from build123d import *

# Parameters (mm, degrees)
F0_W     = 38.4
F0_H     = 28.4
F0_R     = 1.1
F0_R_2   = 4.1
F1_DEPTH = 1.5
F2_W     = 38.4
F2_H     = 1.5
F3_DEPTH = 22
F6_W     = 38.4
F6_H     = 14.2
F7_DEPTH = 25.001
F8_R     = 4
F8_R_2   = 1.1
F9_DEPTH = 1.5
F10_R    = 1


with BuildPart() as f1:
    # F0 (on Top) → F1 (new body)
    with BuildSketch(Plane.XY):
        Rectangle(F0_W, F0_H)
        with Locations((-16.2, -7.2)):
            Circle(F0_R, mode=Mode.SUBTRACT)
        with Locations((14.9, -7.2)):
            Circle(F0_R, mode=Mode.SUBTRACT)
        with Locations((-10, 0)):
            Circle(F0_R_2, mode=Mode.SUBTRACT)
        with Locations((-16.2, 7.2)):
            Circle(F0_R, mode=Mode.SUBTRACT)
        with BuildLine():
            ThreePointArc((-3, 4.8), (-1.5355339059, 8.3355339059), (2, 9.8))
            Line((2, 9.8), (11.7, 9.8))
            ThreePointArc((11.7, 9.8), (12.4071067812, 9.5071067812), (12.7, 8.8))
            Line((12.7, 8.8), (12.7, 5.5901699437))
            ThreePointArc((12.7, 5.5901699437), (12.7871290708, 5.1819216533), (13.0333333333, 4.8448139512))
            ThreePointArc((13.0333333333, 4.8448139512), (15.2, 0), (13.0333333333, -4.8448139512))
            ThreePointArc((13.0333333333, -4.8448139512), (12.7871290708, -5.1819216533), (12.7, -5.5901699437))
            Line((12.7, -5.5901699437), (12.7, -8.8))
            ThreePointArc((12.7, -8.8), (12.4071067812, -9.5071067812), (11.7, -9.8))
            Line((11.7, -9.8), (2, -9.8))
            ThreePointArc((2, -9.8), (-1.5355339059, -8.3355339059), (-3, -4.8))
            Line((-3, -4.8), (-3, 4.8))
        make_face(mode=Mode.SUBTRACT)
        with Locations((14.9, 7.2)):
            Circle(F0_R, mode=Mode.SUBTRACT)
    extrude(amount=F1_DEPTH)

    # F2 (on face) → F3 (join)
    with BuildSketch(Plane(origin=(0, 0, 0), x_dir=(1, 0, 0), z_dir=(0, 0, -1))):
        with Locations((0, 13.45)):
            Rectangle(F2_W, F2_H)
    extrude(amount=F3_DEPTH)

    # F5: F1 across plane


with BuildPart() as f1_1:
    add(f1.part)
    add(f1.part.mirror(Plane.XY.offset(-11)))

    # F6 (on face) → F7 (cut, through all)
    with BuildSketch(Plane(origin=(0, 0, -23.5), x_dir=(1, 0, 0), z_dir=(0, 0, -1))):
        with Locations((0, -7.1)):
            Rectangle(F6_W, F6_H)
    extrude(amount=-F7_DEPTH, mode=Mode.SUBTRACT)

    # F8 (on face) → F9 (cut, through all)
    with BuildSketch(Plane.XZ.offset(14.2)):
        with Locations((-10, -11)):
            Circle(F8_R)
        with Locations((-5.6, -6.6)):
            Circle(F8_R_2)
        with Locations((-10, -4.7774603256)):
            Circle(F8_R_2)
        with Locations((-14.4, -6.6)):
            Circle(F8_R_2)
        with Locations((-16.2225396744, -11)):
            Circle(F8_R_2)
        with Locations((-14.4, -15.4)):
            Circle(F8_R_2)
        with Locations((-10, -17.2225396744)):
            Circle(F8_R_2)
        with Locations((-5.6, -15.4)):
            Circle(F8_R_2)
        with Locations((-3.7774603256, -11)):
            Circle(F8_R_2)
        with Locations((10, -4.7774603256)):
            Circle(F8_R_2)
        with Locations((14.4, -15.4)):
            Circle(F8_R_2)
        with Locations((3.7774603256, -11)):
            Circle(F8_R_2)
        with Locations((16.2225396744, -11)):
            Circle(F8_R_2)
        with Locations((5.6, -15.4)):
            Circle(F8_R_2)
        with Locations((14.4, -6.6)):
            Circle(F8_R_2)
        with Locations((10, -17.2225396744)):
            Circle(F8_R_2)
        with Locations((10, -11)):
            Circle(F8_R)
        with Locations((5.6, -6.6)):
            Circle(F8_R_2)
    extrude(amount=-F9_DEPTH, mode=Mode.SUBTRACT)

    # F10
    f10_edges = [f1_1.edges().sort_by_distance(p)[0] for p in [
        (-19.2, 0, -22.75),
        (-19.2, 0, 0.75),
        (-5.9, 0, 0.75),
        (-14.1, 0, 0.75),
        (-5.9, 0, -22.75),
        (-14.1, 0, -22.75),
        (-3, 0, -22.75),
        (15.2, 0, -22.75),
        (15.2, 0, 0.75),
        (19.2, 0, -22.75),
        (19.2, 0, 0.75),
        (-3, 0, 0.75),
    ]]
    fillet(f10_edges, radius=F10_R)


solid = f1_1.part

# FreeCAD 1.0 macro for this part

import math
import FreeCAD as App
import Part
import Sketcher

V = App.Vector


def edges_at(feature, points):
    """Names of the edges that pass closest to the given points."""
    edges = feature.Shape.Edges
    near = lambda p: min(range(len(edges)), key=lambda i: edges[i].distToShape(Part.Vertex(*p))[0])
    return sorted({f"Edge{near(p) + 1}" for p in points})

doc = App.newDocument("Part")
body = doc.addObject("PartDesign::Body", "Body")

# Sketch on XY plane
sketch1 = body.newObject("Sketcher::SketchObject", "Sketch")
sketch1.AttachmentSupport = (doc.getObject("XY_Plane"), [""])
sketch1.MapMode = "FlatFace"
sketch1.addGeometry(Part.LineSegment(V(-19.2, 14.2, 0), V(-19.2, -14.2, 0)), False)
sketch1.addGeometry(Part.LineSegment(V(-19.2, -14.2, 0), V(19.2, -14.2, 0)), False)
sketch1.addGeometry(Part.LineSegment(V(19.2, -14.2, 0), V(19.2, 14.2, 0)), False)
sketch1.addGeometry(Part.LineSegment(V(19.2, 14.2, 0), V(-19.2, 14.2, 0)), False)
sketch1.addGeometry(Part.Circle(V(-16.2, -7.2, 0), V(0, 0, 1), 1.1), False)
sketch1.addGeometry(Part.Circle(V(14.9, -7.2, 0), V(0, 0, 1), 1.1), False)
sketch1.addGeometry(Part.Circle(V(-10, 0, 0), V(0, 0, 1), 4.1), False)
sketch1.addGeometry(Part.Circle(V(-16.2, 7.2, 0), V(0, 0, 1), 1.1), False)
sketch1.addGeometry(Part.LineSegment(V(-3, -4.8, 0), V(-3, 4.8, 0)), False)
sketch1.addGeometry(Part.ArcOfCircle(Part.Circle(V(2, 4.8, 0), V(0, 0, 1), 5), math.radians(90), math.radians(180)), False)
sketch1.addGeometry(Part.LineSegment(V(2, 9.8, 0), V(11.7, 9.8, 0)), False)
sketch1.addGeometry(Part.ArcOfCircle(Part.Circle(V(11.7, 8.8, 0), V(0, 0, 1), 1), math.radians(0), math.radians(90)), False)
sketch1.addGeometry(Part.LineSegment(V(12.7, 8.8, 0), V(12.7, 5.59017, 0)), False)
sketch1.addGeometry(Part.ArcOfCircle(Part.Circle(V(13.7, 5.59017, 0), V(0, 0, 1), 1), math.radians(180), math.radians(228.189685)), False)
sketch1.addGeometry(Part.ArcOfCircle(Part.Circle(V(8.7, 0, 0), V(0, 0, 1), 6.5), math.radians(-48.189685), math.radians(48.189685)), False)
sketch1.addGeometry(Part.ArcOfCircle(Part.Circle(V(13.7, -5.59017, 0), V(0, 0, 1), 1), math.radians(131.810315), math.radians(180)), False)
sketch1.addGeometry(Part.LineSegment(V(12.7, -5.59017, 0), V(12.7, -8.8, 0)), False)
sketch1.addGeometry(Part.ArcOfCircle(Part.Circle(V(11.7, -8.8, 0), V(0, 0, 1), 1), math.radians(-90), math.radians(0)), False)
sketch1.addGeometry(Part.LineSegment(V(11.7, -9.8, 0), V(2, -9.8, 0)), False)
sketch1.addGeometry(Part.ArcOfCircle(Part.Circle(V(2, -4.8, 0), V(0, 0, 1), 5), math.radians(180), math.radians(270)), False)
sketch1.addGeometry(Part.Circle(V(14.9, 7.2, 0), V(0, 0, 1), 1.1), False)
sketch1.addConstraint(Sketcher.Constraint("Coincident", 0, 2, 1, 1))
sketch1.addConstraint(Sketcher.Constraint("Coincident", 1, 2, 2, 1))
sketch1.addConstraint(Sketcher.Constraint("Coincident", 2, 2, 3, 1))
sketch1.addConstraint(Sketcher.Constraint("Coincident", 3, 2, 0, 1))
sketch1.addConstraint(Sketcher.Constraint("Tangent", 8, 2, 9, 2))
sketch1.addConstraint(Sketcher.Constraint("Tangent", 9, 1, 10, 1))
sketch1.addConstraint(Sketcher.Constraint("Tangent", 10, 2, 11, 2))
sketch1.addConstraint(Sketcher.Constraint("Tangent", 11, 1, 12, 1))
sketch1.addConstraint(Sketcher.Constraint("Tangent", 12, 2, 13, 1))
sketch1.addConstraint(Sketcher.Constraint("Tangent", 13, 2, 14, 2))
sketch1.addConstraint(Sketcher.Constraint("Tangent", 14, 1, 15, 1))
sketch1.addConstraint(Sketcher.Constraint("Tangent", 15, 2, 16, 1))
sketch1.addConstraint(Sketcher.Constraint("Tangent", 16, 2, 17, 2))
sketch1.addConstraint(Sketcher.Constraint("Tangent", 17, 1, 18, 1))
sketch1.addConstraint(Sketcher.Constraint("Tangent", 18, 2, 19, 2))
sketch1.addConstraint(Sketcher.Constraint("Tangent", 19, 1, 8, 1))
sketch1.addConstraint(Sketcher.Constraint("Vertical", 0))
sketch1.addConstraint(Sketcher.Constraint("Horizontal", 1))
sketch1.addConstraint(Sketcher.Constraint("Vertical", 2))
sketch1.addConstraint(Sketcher.Constraint("Horizontal", 3))
sketch1.addConstraint(Sketcher.Constraint("Vertical", 8))
sketch1.addConstraint(Sketcher.Constraint("Horizontal", 10))
sketch1.addConstraint(Sketcher.Constraint("Vertical", 12))
sketch1.addConstraint(Sketcher.Constraint("Vertical", 16))
sketch1.addConstraint(Sketcher.Constraint("Horizontal", 18))
sketch1.addConstraint(Sketcher.Constraint("Equal", 4, 5))
sketch1.addConstraint(Sketcher.Constraint("Equal", 5, 7))
sketch1.addConstraint(Sketcher.Constraint("Equal", 11, 13))
sketch1.addConstraint(Sketcher.Constraint("Equal", 13, 15))
sketch1.addConstraint(Sketcher.Constraint("Equal", 15, 17))
sketch1.addConstraint(Sketcher.Constraint("Equal", 9, 19))
sketch1.addConstraint(Sketcher.Constraint("Equal", 7, 20))
sketch1.addConstraint(Sketcher.Constraint("Symmetric", 0, 2, 2, 2, -1, 1))
sketch1.addConstraint(Sketcher.Constraint("Symmetric", 4, 3, 7, 3, -1))
sketch1.addConstraint(Sketcher.Constraint("Symmetric", 13, 3, 15, 3, -1))
sketch1.addConstraint(Sketcher.Constraint("Symmetric", 5, 3, 20, 3, -1))
sketch1.addConstraint(Sketcher.Constraint("PointOnObject", 6, 3, -1))
sketch1.addConstraint(Sketcher.Constraint("Horizontal", 4, 3, 5, 3))
sketch1.addConstraint(Sketcher.Constraint("Equal", 12, 16))
sketch1.addConstraint(Sketcher.Constraint("Radius", 9, 5.0))
sketch1.addConstraint(Sketcher.Constraint("Radius", 11, 1.0))
sketch1.addConstraint(Sketcher.Constraint("Diameter", 4, 2.2))
sketch1.addConstraint(Sketcher.Constraint("Diameter", 6, 8.2))
sketch1.addConstraint(Sketcher.Constraint("Radius", 14, 6.5))
sketch1.addConstraint(Sketcher.Constraint("DistanceX", 1, 1, 1, 2, 38.4))
sketch1.addConstraint(Sketcher.Constraint("DistanceX", 10, 1, 10, 2, 9.7))
sketch1.addConstraint(Sketcher.Constraint("DistanceY", 0, 2, 0, 1, 28.4))
sketch1.addConstraint(Sketcher.Constraint("DistanceY", 8, 1, 8, 2, 9.6))
sketch1.addConstraint(Sketcher.Constraint("DistanceX", 6, 3, -1, 1, 10.0))
sketch1.addConstraint(Sketcher.Constraint("DistanceX", -1, 1, 9, 3, 2.0))
sketch1.addConstraint(Sketcher.Constraint("DistanceY", 5, 3, 9, 3, 12.0))
sketch1.addConstraint(Sketcher.Constraint("DistanceX", 14, 3, 13, 3, 5.0))
sketch1.addConstraint(Sketcher.Constraint("DistanceX", 0, 2, 4, 3, 3.0))
sketch1.addConstraint(Sketcher.Constraint("DistanceX", -1, 1, 5, 3, 14.9))
pad1 = body.newObject("PartDesign::Pad", "Pad")
pad1.Profile = sketch1
pad1.Length = 1.5

# Sketch on XY plane
sketch2 = body.newObject("Sketcher::SketchObject", "Sketch001")
sketch2.AttachmentSupport = (doc.getObject("XY_Plane"), [""])
sketch2.MapMode = "FlatFace"
sketch2.addGeometry(Part.LineSegment(V(-19.2, -14.2, 0), V(-19.2, -12.7, 0)), False)
sketch2.addGeometry(Part.LineSegment(V(-19.2, -12.7, 0), V(19.2, -12.7, 0)), False)
sketch2.addGeometry(Part.LineSegment(V(19.2, -12.7, 0), V(19.2, -14.2, 0)), False)
sketch2.addGeometry(Part.LineSegment(V(19.2, -14.2, 0), V(-19.2, -14.2, 0)), False)
sketch2.addConstraint(Sketcher.Constraint("Coincident", 0, 2, 1, 1))
sketch2.addConstraint(Sketcher.Constraint("Coincident", 1, 2, 2, 1))
sketch2.addConstraint(Sketcher.Constraint("Coincident", 2, 2, 3, 1))
sketch2.addConstraint(Sketcher.Constraint("Coincident", 3, 2, 0, 1))
sketch2.addConstraint(Sketcher.Constraint("Vertical", 0))
sketch2.addConstraint(Sketcher.Constraint("Horizontal", 1))
sketch2.addConstraint(Sketcher.Constraint("Vertical", 2))
sketch2.addConstraint(Sketcher.Constraint("Horizontal", 3))
sketch2.addConstraint(Sketcher.Constraint("DistanceX", 1, 1, 1, 2, 38.4))
sketch2.addConstraint(Sketcher.Constraint("DistanceY", 0, 1, 0, 2, 1.5))
sketch2.addConstraint(Sketcher.Constraint("DistanceX", 0, 2, -1, 1, 19.2))
sketch2.addConstraint(Sketcher.Constraint("DistanceY", 0, 2, -1, 1, 12.7))
pad2 = body.newObject("PartDesign::Pad", "Pad001")
pad2.Profile = sketch2
pad2.Length = 22
pad2.Reversed = True
body2 = doc.addObject("PartDesign::Body", "Body001")
doc.recompute()

body2.BaseFeature = body
doc.recompute()

mirroring = doc.addObject("Part::Mirroring", "Mirroring")
mirroring.Source = body
mirroring.Base = V(0, 0, -11)
mirroring.Normal = V(0, 0, 1)
body3 = doc.addObject("PartDesign::Body", "Body002")
body3.BaseFeature = mirroring
boolean = body2.newObject("PartDesign::Boolean", "Boolean")
boolean.Type = "Fuse"
boolean.addObjects([body3])
doc.recompute()

# Sketch on XY plane
sketch3 = body2.newObject("Sketcher::SketchObject", "Sketch002")
sketch3.AttachmentSupport = (doc.getObject("XY_Plane001"), [""])
sketch3.MapMode = "FlatFace"
sketch3.AttachmentOffset = App.Placement(V(0, 0, -23.5), App.Rotation())
sketch3.addGeometry(Part.LineSegment(V(-19.2, 0, 0), V(-19.2, 14.2, 0)), False)
sketch3.addGeometry(Part.LineSegment(V(-19.2, 14.2, 0), V(19.2, 14.2, 0)), False)
sketch3.addGeometry(Part.LineSegment(V(19.2, 14.2, 0), V(19.2, 0, 0)), False)
sketch3.addGeometry(Part.LineSegment(V(19.2, 0, 0), V(-19.2, 0, 0)), False)
sketch3.addConstraint(Sketcher.Constraint("Coincident", 0, 2, 1, 1))
sketch3.addConstraint(Sketcher.Constraint("Coincident", 1, 2, 2, 1))
sketch3.addConstraint(Sketcher.Constraint("Coincident", 2, 2, 3, 1))
sketch3.addConstraint(Sketcher.Constraint("Coincident", 3, 2, 0, 1))
sketch3.addConstraint(Sketcher.Constraint("Vertical", 0))
sketch3.addConstraint(Sketcher.Constraint("Horizontal", 1))
sketch3.addConstraint(Sketcher.Constraint("Vertical", 2))
sketch3.addConstraint(Sketcher.Constraint("Horizontal", 3))
sketch3.addConstraint(Sketcher.Constraint("Symmetric", 2, 2, 3, 2, -1, 1))
sketch3.addConstraint(Sketcher.Constraint("DistanceX", 1, 1, 1, 2, 38.4))
sketch3.addConstraint(Sketcher.Constraint("DistanceY", 0, 1, 0, 2, 14.2))
pocket1 = body2.newObject("PartDesign::Pocket", "Pocket")
pocket1.Profile = sketch3
pocket1.Type = "ThroughAll"
pocket1.Reversed = True

# Sketch on XZ plane
sketch4 = body2.newObject("Sketcher::SketchObject", "Sketch003")
sketch4.AttachmentSupport = (doc.getObject("XZ_Plane001"), [""])
sketch4.MapMode = "FlatFace"
sketch4.AttachmentOffset = App.Placement(V(0, 0, 14.2), App.Rotation())
sketch4.addGeometry(Part.Circle(V(-10, -11, 0), V(0, 0, 1), 4), False)
sketch4.addGeometry(Part.Circle(V(-5.6, -6.6, 0), V(0, 0, 1), 1.1), False)
sketch4.addGeometry(Part.Circle(V(-10, -4.77746, 0), V(0, 0, 1), 1.1), False)
sketch4.addGeometry(Part.Circle(V(-14.4, -6.6, 0), V(0, 0, 1), 1.1), False)
sketch4.addGeometry(Part.Circle(V(-16.22254, -11, 0), V(0, 0, 1), 1.1), False)
sketch4.addGeometry(Part.Circle(V(-14.4, -15.4, 0), V(0, 0, 1), 1.1), False)
sketch4.addGeometry(Part.Circle(V(-10, -17.22254, 0), V(0, 0, 1), 1.1), False)
sketch4.addGeometry(Part.Circle(V(-5.6, -15.4, 0), V(0, 0, 1), 1.1), False)
sketch4.addGeometry(Part.Circle(V(-3.77746, -11, 0), V(0, 0, 1), 1.1), False)
sketch4.addGeometry(Part.Circle(V(10, -4.77746, 0), V(0, 0, 1), 1.1), False)
sketch4.addGeometry(Part.Circle(V(14.4, -15.4, 0), V(0, 0, 1), 1.1), False)
sketch4.addGeometry(Part.Circle(V(3.77746, -11, 0), V(0, 0, 1), 1.1), False)
sketch4.addGeometry(Part.Circle(V(16.22254, -11, 0), V(0, 0, 1), 1.1), False)
sketch4.addGeometry(Part.Circle(V(5.6, -15.4, 0), V(0, 0, 1), 1.1), False)
sketch4.addGeometry(Part.Circle(V(14.4, -6.6, 0), V(0, 0, 1), 1.1), False)
sketch4.addGeometry(Part.Circle(V(10, -17.22254, 0), V(0, 0, 1), 1.1), False)
sketch4.addGeometry(Part.Circle(V(10, -11, 0), V(0, 0, 1), 4), False)
sketch4.addGeometry(Part.Circle(V(5.6, -6.6, 0), V(0, 0, 1), 1.1), False)
sketch4.addConstraint(Sketcher.Constraint("Equal", 1, 2))
sketch4.addConstraint(Sketcher.Constraint("Equal", 2, 3))
sketch4.addConstraint(Sketcher.Constraint("Equal", 3, 4))
sketch4.addConstraint(Sketcher.Constraint("Equal", 4, 5))
sketch4.addConstraint(Sketcher.Constraint("Equal", 5, 6))
sketch4.addConstraint(Sketcher.Constraint("Equal", 6, 7))
sketch4.addConstraint(Sketcher.Constraint("Equal", 7, 8))
sketch4.addConstraint(Sketcher.Constraint("Equal", 8, 9))
sketch4.addConstraint(Sketcher.Constraint("Equal", 9, 10))
sketch4.addConstraint(Sketcher.Constraint("Equal", 10, 11))
sketch4.addConstraint(Sketcher.Constraint("Equal", 11, 12))
sketch4.addConstraint(Sketcher.Constraint("Equal", 12, 13))
sketch4.addConstraint(Sketcher.Constraint("Equal", 13, 14))
sketch4.addConstraint(Sketcher.Constraint("Equal", 14, 15))
sketch4.addConstraint(Sketcher.Constraint("Equal", 0, 16))
sketch4.addConstraint(Sketcher.Constraint("Equal", 15, 17))
sketch4.addConstraint(Sketcher.Constraint("Symmetric", 2, 3, 9, 3, -2))
sketch4.addConstraint(Sketcher.Constraint("Symmetric", 5, 3, 10, 3, -2))
sketch4.addConstraint(Sketcher.Constraint("Symmetric", 8, 3, 11, 3, -2))
sketch4.addConstraint(Sketcher.Constraint("Symmetric", 4, 3, 12, 3, -2))
sketch4.addConstraint(Sketcher.Constraint("Symmetric", 7, 3, 13, 3, -2))
sketch4.addConstraint(Sketcher.Constraint("Symmetric", 3, 3, 14, 3, -2))
sketch4.addConstraint(Sketcher.Constraint("Symmetric", 6, 3, 15, 3, -2))
sketch4.addConstraint(Sketcher.Constraint("Symmetric", 0, 3, 16, 3, -2))
sketch4.addConstraint(Sketcher.Constraint("Symmetric", 1, 3, 17, 3, -2))
sketch4.addConstraint(Sketcher.Constraint("Horizontal", 1, 3, 3, 3))
sketch4.addConstraint(Sketcher.Constraint("Horizontal", 0, 3, 4, 3))
sketch4.addConstraint(Sketcher.Constraint("Horizontal", 5, 3, 7, 3))
sketch4.addConstraint(Sketcher.Constraint("Horizontal", 4, 3, 8, 3))
sketch4.addConstraint(Sketcher.Constraint("Vertical", 0, 3, 2, 3))
sketch4.addConstraint(Sketcher.Constraint("Vertical", 3, 3, 5, 3))
sketch4.addConstraint(Sketcher.Constraint("Vertical", 2, 3, 6, 3))
sketch4.addConstraint(Sketcher.Constraint("Vertical", 1, 3, 7, 3))
sketch4.addConstraint(Sketcher.Constraint("Diameter", 0, 8.0))
sketch4.addConstraint(Sketcher.Constraint("Diameter", 1, 2.2))
sketch4.addConstraint(Sketcher.Constraint("DistanceX", 0, 3, -1, 1, 10.0))
sketch4.addConstraint(Sketcher.Constraint("DistanceY", 0, 3, -1, 1, 11.0))
sketch4.addConstraint(Sketcher.Constraint("DistanceX", 7, 3, 10, 3, 20.0))
sketch4.addConstraint(Sketcher.Constraint("DistanceX", 8, 3, 12, 3, 20.0))
sketch4.addConstraint(Sketcher.Constraint("DistanceX", 1, 3, -1, 1, 5.6))
sketch4.addConstraint(Sketcher.Constraint("DistanceY", 1, 3, -1, 1, 6.6))
sketch4.addConstraint(Sketcher.Constraint("DistanceY", 5, 3, -1, 1, 15.4))
sketch4.addConstraint(Sketcher.Constraint("DistanceY", 2, 3, -1, 1, 4.77746))
sketch4.addConstraint(Sketcher.Constraint("DistanceX", 4, 3, -1, 1, 16.22254))
sketch4.addConstraint(Sketcher.Constraint("DistanceY", 6, 3, -1, 1, 17.22254))
pocket2 = body2.newObject("PartDesign::Pocket", "Pocket001")
pocket2.Profile = sketch4
pocket2.Type = "ThroughAll"
doc.recompute()

fillet = body2.newObject("PartDesign::Fillet", "Fillet")
fillet.Base = (pocket2, edges_at(pocket2, [
    (-19.2, 0, -22.75),
    (-19.2, 0, 0.75),
    (-5.9, 0, 0.75),
    (-14.1, 0, 0.75),
    (-5.9, 0, -22.75),
    (-14.1, 0, -22.75),
    (-3, 0, -22.75),
    (15.2, 0, -22.75),
    (15.2, 0, 0.75),
    (19.2, 0, -22.75),
    (19.2, 0, 0.75),
    (-3, 0, 0.75),
]))
fillet.Radius = 1
mirroring.Visibility = False

doc.recompute()
